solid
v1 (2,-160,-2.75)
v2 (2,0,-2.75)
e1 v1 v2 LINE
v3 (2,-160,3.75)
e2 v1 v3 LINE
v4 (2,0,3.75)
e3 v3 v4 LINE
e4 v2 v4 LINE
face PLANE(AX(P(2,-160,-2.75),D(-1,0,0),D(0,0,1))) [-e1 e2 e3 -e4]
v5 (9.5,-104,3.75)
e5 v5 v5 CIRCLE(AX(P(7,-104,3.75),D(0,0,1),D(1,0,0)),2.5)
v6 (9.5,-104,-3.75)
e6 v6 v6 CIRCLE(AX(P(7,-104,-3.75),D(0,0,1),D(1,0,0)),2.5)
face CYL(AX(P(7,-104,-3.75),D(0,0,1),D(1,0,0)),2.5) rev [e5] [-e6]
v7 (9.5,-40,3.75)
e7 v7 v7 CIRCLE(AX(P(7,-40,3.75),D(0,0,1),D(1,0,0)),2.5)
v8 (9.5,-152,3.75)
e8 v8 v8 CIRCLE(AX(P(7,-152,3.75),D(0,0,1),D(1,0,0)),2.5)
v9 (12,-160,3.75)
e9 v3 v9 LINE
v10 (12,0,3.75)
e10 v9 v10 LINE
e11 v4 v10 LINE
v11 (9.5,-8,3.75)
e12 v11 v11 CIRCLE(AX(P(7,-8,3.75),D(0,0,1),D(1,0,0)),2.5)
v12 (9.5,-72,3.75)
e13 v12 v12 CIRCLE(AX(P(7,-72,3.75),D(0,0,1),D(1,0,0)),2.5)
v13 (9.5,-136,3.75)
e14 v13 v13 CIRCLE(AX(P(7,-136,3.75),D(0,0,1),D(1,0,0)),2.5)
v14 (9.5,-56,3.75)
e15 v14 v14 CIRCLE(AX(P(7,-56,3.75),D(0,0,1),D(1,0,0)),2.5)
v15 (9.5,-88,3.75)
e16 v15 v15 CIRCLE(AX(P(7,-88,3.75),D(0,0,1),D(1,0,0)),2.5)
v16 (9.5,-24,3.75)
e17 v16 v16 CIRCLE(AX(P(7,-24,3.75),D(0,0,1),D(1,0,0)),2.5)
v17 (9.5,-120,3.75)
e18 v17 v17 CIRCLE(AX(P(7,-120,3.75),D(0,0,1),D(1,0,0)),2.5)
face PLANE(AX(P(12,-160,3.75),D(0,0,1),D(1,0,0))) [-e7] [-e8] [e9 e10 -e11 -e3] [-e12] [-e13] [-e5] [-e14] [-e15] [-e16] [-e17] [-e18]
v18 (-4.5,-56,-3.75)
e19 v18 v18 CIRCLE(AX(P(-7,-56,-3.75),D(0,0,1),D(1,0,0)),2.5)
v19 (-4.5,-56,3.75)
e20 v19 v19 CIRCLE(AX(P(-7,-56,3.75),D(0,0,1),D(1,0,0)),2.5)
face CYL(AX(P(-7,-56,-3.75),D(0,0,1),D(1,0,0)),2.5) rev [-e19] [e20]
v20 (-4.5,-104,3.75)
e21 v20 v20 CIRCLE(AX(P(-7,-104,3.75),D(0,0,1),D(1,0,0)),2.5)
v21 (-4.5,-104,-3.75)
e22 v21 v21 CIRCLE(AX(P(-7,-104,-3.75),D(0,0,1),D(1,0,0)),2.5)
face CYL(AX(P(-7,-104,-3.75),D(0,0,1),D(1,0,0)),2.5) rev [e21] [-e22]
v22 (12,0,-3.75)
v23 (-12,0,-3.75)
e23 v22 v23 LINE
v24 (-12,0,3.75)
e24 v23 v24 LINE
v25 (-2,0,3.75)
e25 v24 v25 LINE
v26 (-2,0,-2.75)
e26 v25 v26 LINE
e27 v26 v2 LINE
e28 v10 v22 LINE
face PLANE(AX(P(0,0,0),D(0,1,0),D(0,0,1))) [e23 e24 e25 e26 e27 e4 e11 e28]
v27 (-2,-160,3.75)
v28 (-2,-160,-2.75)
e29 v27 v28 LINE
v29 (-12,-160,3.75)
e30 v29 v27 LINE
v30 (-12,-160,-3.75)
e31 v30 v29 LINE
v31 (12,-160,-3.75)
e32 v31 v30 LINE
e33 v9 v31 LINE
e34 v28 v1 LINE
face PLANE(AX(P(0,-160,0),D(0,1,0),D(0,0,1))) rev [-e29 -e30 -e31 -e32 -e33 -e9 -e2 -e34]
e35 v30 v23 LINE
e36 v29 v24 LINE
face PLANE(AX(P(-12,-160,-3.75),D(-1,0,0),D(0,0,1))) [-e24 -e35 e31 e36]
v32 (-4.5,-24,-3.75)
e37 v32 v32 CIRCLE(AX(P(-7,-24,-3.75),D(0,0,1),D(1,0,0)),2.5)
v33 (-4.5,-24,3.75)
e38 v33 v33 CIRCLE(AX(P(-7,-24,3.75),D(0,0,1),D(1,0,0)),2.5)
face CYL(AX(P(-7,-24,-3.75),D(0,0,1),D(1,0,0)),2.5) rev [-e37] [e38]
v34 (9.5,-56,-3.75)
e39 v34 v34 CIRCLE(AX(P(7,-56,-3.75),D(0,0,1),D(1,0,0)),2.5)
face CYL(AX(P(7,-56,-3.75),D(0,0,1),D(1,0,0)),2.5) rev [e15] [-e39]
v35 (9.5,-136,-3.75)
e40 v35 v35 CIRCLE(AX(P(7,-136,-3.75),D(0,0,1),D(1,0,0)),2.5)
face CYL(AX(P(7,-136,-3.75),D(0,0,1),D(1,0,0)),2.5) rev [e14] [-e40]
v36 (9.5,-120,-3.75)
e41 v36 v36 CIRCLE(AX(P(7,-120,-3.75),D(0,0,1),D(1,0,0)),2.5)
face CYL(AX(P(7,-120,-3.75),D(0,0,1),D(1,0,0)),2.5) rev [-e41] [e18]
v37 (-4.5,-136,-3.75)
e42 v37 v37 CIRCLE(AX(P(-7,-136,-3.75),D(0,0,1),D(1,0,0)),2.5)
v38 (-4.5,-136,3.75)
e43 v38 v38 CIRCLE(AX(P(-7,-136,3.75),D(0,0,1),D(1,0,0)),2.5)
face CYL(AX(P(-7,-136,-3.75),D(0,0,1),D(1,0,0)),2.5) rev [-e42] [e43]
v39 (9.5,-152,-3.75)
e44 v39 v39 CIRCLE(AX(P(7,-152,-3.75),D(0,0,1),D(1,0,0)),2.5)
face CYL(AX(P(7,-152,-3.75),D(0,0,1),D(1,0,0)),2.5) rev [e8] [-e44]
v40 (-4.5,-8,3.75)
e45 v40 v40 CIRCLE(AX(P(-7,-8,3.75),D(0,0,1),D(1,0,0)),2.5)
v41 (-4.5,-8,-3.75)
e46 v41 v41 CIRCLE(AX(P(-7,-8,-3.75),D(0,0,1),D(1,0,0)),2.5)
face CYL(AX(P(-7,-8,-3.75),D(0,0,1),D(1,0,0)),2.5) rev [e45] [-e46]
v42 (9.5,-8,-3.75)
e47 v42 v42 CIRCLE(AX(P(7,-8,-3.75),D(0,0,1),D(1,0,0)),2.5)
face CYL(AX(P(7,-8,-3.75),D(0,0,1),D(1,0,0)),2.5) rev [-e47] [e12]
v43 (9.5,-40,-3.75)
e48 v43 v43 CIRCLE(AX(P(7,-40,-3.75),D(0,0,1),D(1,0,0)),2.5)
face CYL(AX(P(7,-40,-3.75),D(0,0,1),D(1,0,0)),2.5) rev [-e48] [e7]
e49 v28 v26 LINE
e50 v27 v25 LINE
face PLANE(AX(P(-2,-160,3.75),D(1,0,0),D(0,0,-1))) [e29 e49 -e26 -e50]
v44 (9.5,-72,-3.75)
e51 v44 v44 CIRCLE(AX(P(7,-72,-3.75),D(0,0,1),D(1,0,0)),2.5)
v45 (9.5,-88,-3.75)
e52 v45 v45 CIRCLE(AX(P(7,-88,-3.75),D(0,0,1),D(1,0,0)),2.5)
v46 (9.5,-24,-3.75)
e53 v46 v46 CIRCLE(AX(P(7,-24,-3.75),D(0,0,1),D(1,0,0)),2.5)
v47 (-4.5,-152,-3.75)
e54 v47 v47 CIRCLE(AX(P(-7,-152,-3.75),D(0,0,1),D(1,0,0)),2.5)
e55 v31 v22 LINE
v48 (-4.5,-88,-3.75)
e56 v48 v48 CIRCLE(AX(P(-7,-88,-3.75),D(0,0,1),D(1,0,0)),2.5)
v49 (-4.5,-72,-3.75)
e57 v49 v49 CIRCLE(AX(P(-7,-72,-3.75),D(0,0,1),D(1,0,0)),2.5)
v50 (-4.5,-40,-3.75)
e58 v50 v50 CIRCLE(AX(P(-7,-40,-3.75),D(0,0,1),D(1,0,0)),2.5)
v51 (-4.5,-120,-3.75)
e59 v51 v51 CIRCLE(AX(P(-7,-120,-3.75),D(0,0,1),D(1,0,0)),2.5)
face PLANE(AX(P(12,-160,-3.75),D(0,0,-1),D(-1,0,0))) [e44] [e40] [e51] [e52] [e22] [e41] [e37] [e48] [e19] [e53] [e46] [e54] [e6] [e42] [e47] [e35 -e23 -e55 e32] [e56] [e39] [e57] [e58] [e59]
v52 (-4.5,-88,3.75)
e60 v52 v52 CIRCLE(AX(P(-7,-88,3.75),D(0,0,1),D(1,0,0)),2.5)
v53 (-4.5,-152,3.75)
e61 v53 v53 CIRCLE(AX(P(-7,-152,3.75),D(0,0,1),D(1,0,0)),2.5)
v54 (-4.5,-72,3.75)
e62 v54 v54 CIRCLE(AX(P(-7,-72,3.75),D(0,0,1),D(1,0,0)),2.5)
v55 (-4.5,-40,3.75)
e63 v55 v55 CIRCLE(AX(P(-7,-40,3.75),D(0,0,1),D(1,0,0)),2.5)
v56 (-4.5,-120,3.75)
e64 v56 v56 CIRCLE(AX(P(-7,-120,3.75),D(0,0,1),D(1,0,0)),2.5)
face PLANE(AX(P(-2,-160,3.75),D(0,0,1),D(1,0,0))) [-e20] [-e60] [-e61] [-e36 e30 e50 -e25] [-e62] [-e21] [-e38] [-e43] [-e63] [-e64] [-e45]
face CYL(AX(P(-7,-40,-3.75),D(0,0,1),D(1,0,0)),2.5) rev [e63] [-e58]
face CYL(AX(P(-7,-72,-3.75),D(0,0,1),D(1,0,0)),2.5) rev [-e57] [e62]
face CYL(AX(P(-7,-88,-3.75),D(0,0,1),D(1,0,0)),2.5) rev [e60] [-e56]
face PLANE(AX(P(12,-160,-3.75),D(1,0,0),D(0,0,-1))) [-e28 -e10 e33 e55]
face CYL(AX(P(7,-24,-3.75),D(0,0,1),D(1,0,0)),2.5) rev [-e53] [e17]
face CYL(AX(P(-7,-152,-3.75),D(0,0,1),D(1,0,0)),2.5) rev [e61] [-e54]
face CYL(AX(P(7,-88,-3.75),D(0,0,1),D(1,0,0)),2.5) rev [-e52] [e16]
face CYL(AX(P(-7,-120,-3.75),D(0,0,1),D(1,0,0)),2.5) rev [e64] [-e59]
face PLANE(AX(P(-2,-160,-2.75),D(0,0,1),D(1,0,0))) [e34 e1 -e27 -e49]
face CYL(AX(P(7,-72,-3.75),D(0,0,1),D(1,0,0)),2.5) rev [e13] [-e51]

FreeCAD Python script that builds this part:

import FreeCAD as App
import Part
import Sketcher

doc = App.newDocument("Part")
body = doc.addObject("PartDesign::Body", "Body")

# Sketch on XZ plane
sketch1 = body.newObject("Sketcher::SketchObject", "Sketch")
sketch1.AttachmentSupport = (doc.getObject("XZ_Plane"), [""])
sketch1.MapMode = "FlatFace"
sketch1.addGeometry([
    Part.LineSegment(App.Vector(-2, 3.8, 0), App.Vector(-2, -2.8, 0)),  # 0
    Part.LineSegment(App.Vector(-2, -2.8, 0), App.Vector(2, -2.8, 0)),  # 1
    Part.LineSegment(App.Vector(2, -2.8, 0), App.Vector(2, 3.8, 0)),  # 2
    Part.LineSegment(App.Vector(2, 3.8, 0), App.Vector(12, 3.8, 0)),  # 3
    Part.LineSegment(App.Vector(12, 3.8, 0), App.Vector(12, -3.8, 0)),  # 4
    Part.LineSegment(App.Vector(12, -3.8, 0), App.Vector(-12, -3.8, 0)),  # 5
    Part.LineSegment(App.Vector(-12, -3.8, 0), App.Vector(-12, 3.8, 0)),  # 6
    Part.LineSegment(App.Vector(-12, 3.8, 0), App.Vector(-2, 3.8, 0)),  # 7
], False)
sketch1.addConstraint([
    Sketcher.Constraint("Coincident", 0, 2, 1, 1),
    Sketcher.Constraint("Coincident", 1, 2, 2, 1),
    Sketcher.Constraint("Coincident", 2, 2, 3, 1),
    Sketcher.Constraint("Coincident", 3, 2, 4, 1),
    Sketcher.Constraint("Coincident", 4, 2, 5, 1),
    Sketcher.Constraint("Coincident", 5, 2, 6, 1),
    Sketcher.Constraint("Coincident", 6, 2, 7, 1),
    Sketcher.Constraint("Coincident", 7, 2, 0, 1),
    Sketcher.Constraint("Vertical", 0),
    Sketcher.Constraint("Horizontal", 1),
    Sketcher.Constraint("Vertical", 2),
    Sketcher.Constraint("Horizontal", 3),
    Sketcher.Constraint("Vertical", 4),
    Sketcher.Constraint("Horizontal", 5),
    Sketcher.Constraint("Vertical", 6),
    Sketcher.Constraint("Horizontal", 7),
    Sketcher.Constraint("Symmetric", 3, 2, 5, 2, -1, 1),
    Sketcher.Constraint("Symmetric", 2, 2, 7, 2, -2),
    Sketcher.Constraint("DistanceX", 1, 1, 1, 2, 4.0),
    Sketcher.Constraint("DistanceX", 3, 1, 3, 2, 10.0),
    Sketcher.Constraint("DistanceY", 0, 2, 0, 1, 6.5),
    Sketcher.Constraint("DistanceY", 4, 2, 4, 1, 7.5),
])
pad1 = body.newObject("PartDesign::Pad", "Pad")
pad1.Profile = sketch1
pad1.Length = 160

# Sketch on XY plane
sketch2 = body.newObject("Sketcher::SketchObject", "Sketch001")
sketch2.AttachmentSupport = (doc.getObject("XY_Plane"), [""])
sketch2.MapMode = "FlatFace"
sketch2.AttachmentOffset = App.Placement(App.Vector(0, 0, 3.75), App.Rotation())
sketch2.addGeometry([
    Part.Circle(App.Vector(-7, -8, 0), App.Vector(0, 0, 1), 2.5),  # 0
    Part.Circle(App.Vector(7, -8, 0), App.Vector(0, 0, 1), 2.5),  # 1
    Part.Circle(App.Vector(7, -24, 0), App.Vector(0, 0, 1), 2.5),  # 2
    Part.Circle(App.Vector(7, -40, 0), App.Vector(0, 0, 1), 2.5),  # 3
    Part.Circle(App.Vector(7, -56, 0), App.Vector(0, 0, 1), 2.5),  # 4
    Part.Circle(App.Vector(7, -72, 0), App.Vector(0, 0, 1), 2.5),  # 5
    Part.Circle(App.Vector(7, -88, 0), App.Vector(0, 0, 1), 2.5),  # 6
    Part.Circle(App.Vector(7, -104, 0), App.Vector(0, 0, 1), 2.5),  # 7
    Part.Circle(App.Vector(7, -120, 0), App.Vector(0, 0, 1), 2.5),  # 8
    Part.Circle(App.Vector(7, -136, 0), App.Vector(0, 0, 1), 2.5),  # 9
    Part.Circle(App.Vector(7, -152, 0), App.Vector(0, 0, 1), 2.5),  # 10
    Part.Circle(App.Vector(-7, -24, 0), App.Vector(0, 0, 1), 2.5),  # 11
    Part.Circle(App.Vector(-7, -40, 0), App.Vector(0, 0, 1), 2.5),  # 12
    Part.Circle(App.Vector(-7, -56, 0), App.Vector(0, 0, 1), 2.5),  # 13
    Part.Circle(App.Vector(-7, -72, 0), App.Vector(0, 0, 1), 2.5),  # 14
    Part.Circle(App.Vector(-7, -88, 0), App.Vector(0, 0, 1), 2.5),  # 15
    Part.Circle(App.Vector(-7, -104, 0), App.Vector(0, 0, 1), 2.5),  # 16
    Part.Circle(App.Vector(-7, -120, 0), App.Vector(0, 0, 1), 2.5),  # 17
    Part.Circle(App.Vector(-7, -136, 0), App.Vector(0, 0, 1), 2.5),  # 18
    Part.Circle(App.Vector(-7, -152, 0), App.Vector(0, 0, 1), 2.5),  # 19
], False)
sketch2.addConstraint([
    Sketcher.Constraint("Equal", 0, 1),
    Sketcher.Constraint("Equal", 1, 2),
    Sketcher.Constraint("Equal", 2, 3),
    Sketcher.Constraint("Equal", 3, 4),
    Sketcher.Constraint("Equal", 4, 5),
    Sketcher.Constraint("Equal", 5, 6),
    Sketcher.Constraint("Equal", 6, 7),
    Sketcher.Constraint("Equal", 7, 8),
    Sketcher.Constraint("Equal", 8, 9),
    Sketcher.Constraint("Equal", 9, 10),
    Sketcher.Constraint("Equal", 10, 11),
    Sketcher.Constraint("Equal", 11, 12),
    Sketcher.Constraint("Equal", 12, 13),
    Sketcher.Constraint("Equal", 13, 14),
    Sketcher.Constraint("Equal", 14, 15),
    Sketcher.Constraint("Equal", 15, 16),
    Sketcher.Constraint("Equal", 16, 17),
    Sketcher.Constraint("Equal", 17, 18),
    Sketcher.Constraint("Equal", 18, 19),
    Sketcher.Constraint("Symmetric", 0, 3, 1, 3, -2),
    Sketcher.Constraint("Symmetric", 2, 3, 11, 3, -2),
    Sketcher.Constraint("Symmetric", 3, 3, 12, 3, -2),
    Sketcher.Constraint("Symmetric", 4, 3, 13, 3, -2),
    Sketcher.Constraint("Symmetric", 5, 3, 14, 3, -2),
    Sketcher.Constraint("Symmetric", 6, 3, 15, 3, -2),
    Sketcher.Constraint("Symmetric", 7, 3, 16, 3, -2),
    Sketcher.Constraint("Symmetric", 8, 3, 17, 3, -2),
    Sketcher.Constraint("Symmetric", 9, 3, 18, 3, -2),
    Sketcher.Constraint("Symmetric", 10, 3, 19, 3, -2),
    Sketcher.Constraint("Vertical", 1, 3, 2, 3),
    Sketcher.Constraint("Vertical", 2, 3, 3, 3),
    Sketcher.Constraint("Vertical", 3, 3, 4, 3),
    Sketcher.Constraint("Vertical", 4, 3, 5, 3),
    Sketcher.Constraint("Vertical", 5, 3, 6, 3),
    Sketcher.Constraint("Vertical", 6, 3, 7, 3),
    Sketcher.Constraint("Vertical", 7, 3, 8, 3),
    Sketcher.Constraint("Vertical", 8, 3, 9, 3),
    Sketcher.Constraint("Vertical", 9, 3, 10, 3),
    Sketcher.Constraint("Diameter", 0, 5.0),
    Sketcher.Constraint("DistanceX", 0, 3, -1, 1, 7.0),
    Sketcher.Constraint("DistanceY", 0, 3, -1, 1, 8.0),
    Sketcher.Constraint("DistanceY", 2, 3, -1, 1, 24.0),
    Sketcher.Constraint("DistanceY", 3, 3, -1, 1, 40.0),
    Sketcher.Constraint("DistanceY", 4, 3, -1, 1, 56.0),
    Sketcher.Constraint("DistanceY", 5, 3, -1, 1, 72.0),
    Sketcher.Constraint("DistanceY", 6, 3, -1, 1, 88.0),
    Sketcher.Constraint("DistanceY", 7, 3, -1, 1, 104.0),
    Sketcher.Constraint("DistanceY", 8, 3, -1, 1, 120.0),
    Sketcher.Constraint("DistanceY", 9, 3, -1, 1, 136.0),
    Sketcher.Constraint("DistanceY", 10, 3, -1, 1, 152.0),
])
pocket1 = body.newObject("PartDesign::Pocket", "Pocket")
pocket1.Profile = sketch2
pocket1.Type = "ThroughAll"

doc.recompute()
